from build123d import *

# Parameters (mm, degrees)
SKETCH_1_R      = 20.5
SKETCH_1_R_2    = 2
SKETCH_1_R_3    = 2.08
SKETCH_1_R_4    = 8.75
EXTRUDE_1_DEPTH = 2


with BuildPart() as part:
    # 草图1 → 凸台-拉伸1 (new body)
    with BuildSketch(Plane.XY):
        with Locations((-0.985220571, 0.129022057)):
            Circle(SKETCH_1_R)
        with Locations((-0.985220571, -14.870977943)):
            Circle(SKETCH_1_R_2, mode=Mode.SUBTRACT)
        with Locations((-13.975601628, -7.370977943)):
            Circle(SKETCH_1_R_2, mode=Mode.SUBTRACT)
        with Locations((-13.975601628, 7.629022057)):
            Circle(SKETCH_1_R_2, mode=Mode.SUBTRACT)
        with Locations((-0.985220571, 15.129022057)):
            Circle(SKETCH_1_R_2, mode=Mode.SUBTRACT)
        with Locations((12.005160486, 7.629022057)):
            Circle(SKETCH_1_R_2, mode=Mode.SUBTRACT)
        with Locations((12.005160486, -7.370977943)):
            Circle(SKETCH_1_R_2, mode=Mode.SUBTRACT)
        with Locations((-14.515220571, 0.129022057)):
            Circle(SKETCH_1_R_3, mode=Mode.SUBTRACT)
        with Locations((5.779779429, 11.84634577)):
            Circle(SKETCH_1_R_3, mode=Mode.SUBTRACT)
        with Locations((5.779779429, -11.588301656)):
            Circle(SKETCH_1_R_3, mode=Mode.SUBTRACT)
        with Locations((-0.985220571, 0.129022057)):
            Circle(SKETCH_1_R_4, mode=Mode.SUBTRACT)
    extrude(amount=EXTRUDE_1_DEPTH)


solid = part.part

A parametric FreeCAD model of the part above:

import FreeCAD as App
import Part
import Sketcher

doc = App.newDocument("Part")
params = doc.addObject("Spreadsheet::Sheet", "Params")
for row, (alias, value) in enumerate([
    ("sketch1_diameter", "41 mm"),
    ("sketch1_diameter2", "4 mm"),
    ("sketch1_diameter3", "17.5 mm"),
    ("sketch1_diameter4", "4.16 mm"),
    ("pad1_length", "2 mm"),
], start=1):
    params.set(f"A{row}", alias)
    params.set(f"B{row}", "=" + value)
    params.setAlias(f"B{row}", alias)

body = doc.addObject("PartDesign::Body", "Body")

sketch1 = doc.addObject("Sketcher::SketchObject", "Sketch")
body.addObject(sketch1)
sketch1.AttachmentSupport = (doc.XY_Plane, [""])
sketch1.MapMode = "FlatFace"
sketch1.addGeometry([
    Part.Circle(App.Vector(-0.985221, 0.129022, 0), App.Vector(0, 0, 1), 20.5),
    Part.Circle(App.Vector(-13.975602, -7.370978, 0), App.Vector(0, 0, 1), 2),
    Part.Circle(App.Vector(-0.985221, -14.870978, 0), App.Vector(0, 0, 1), 2),
    Part.Circle(App.Vector(5.779779, -11.588302, 0), App.Vector(0, 0, 1), 2.08),
    Part.Circle(App.Vector(12.00516, -7.370978, 0), App.Vector(0, 0, 1), 2),
    Part.Circle(App.Vector(-14.515221, 0.129022, 0), App.Vector(0, 0, 1), 2.08),
    Part.Circle(App.Vector(-13.975602, 7.629022, 0), App.Vector(0, 0, 1), 2),
    Part.Circle(App.Vector(-0.985221, 0.129022, 0), App.Vector(0, 0, 1), 8.75),
    Part.Circle(App.Vector(12.00516, 7.629022, 0), App.Vector(0, 0, 1), 2),
    Part.Circle(App.Vector(5.779779, 11.846346, 0), App.Vector(0, 0, 1), 2.08),
    Part.Circle(App.Vector(-0.985221, 15.129022, 0), App.Vector(0, 0, 1), 2),
], False)
sketch1.addConstraint([
    Sketcher.Constraint("Coincident", 7, 3, 0, 3),
    Sketcher.Constraint("Equal", 1, 2),
    Sketcher.Constraint("Equal", 2, 4),
    Sketcher.Constraint("Equal", 3, 5),
    Sketcher.Constraint("Equal", 4, 6),
    Sketcher.Constraint("Equal", 6, 8),
    Sketcher.Constraint("Equal", 5, 9),
    Sketcher.Constraint("Equal", 8, 10),
    Sketcher.Constraint("Horizontal", 1, 3, 4, 3),
    Sketcher.Constraint("Horizontal", 0, 3, 5, 3),
    Sketcher.Constraint("Horizontal", 6, 3, 8, 3),
    Sketcher.Constraint("Vertical", 0, 3, 2, 3),
    Sketcher.Constraint("Vertical", 1, 3, 6, 3),
    Sketcher.Constraint("Vertical", 4, 3, 8, 3),
    Sketcher.Constraint("Vertical", 3, 3, 9, 3),
    Sketcher.Constraint("Vertical", 7, 3, 10, 3),
    Sketcher.Constraint("Diameter", 0, 41.0),
    Sketcher.Constraint("Diameter", 1, 4.0),
    Sketcher.Constraint("Diameter", 7, 17.5),
    Sketcher.Constraint("Diameter", 3, 4.16),
    Sketcher.Constraint("DistanceY", 2, 3, 0, 3, 15.0),
    Sketcher.Constraint("DistanceY", 1, 3, 6, 3, 15.0),
    Sketcher.Constraint("DistanceY", 0, 3, 10, 3, 15.0),
    Sketcher.Constraint("DistanceY", 1, 3, 0, 3, 7.5),
    Sketcher.Constraint("DistanceX", 5, 3, 0, 3, 13.53),
    Sketcher.Constraint("DistanceX", 2, 3, 3, 3, 6.765),
    Sketcher.Constraint("DistanceX", 1, 3, -1, 1, 13.975602),
    Sketcher.Constraint("DistanceY", 3, 3, -1, 1, 11.588302),
    Sketcher.Constraint("DistanceX", 0, 3, -1, 1, 0.985221),
    Sketcher.Constraint("DistanceX", -1, 1, 4, 3, 12.00516),
    Sketcher.Constraint("DistanceY", -1, 1, 0, 3, 0.129022),
    Sketcher.Constraint("DistanceY", -1, 1, 9, 3, 11.846346),
])
sketch1.setExpression("Constraints[16]", "Params.sketch1_diameter")
sketch1.setExpression("Constraints[17]", "Params.sketch1_diameter2")
sketch1.setExpression("Constraints[18]", "Params.sketch1_diameter3")
sketch1.setExpression("Constraints[19]", "Params.sketch1_diameter4")
pad1 = doc.addObject("PartDesign::Pad", "Pad")
body.addObject(pad1)
pad1.Profile = sketch1
pad1.setExpression("Length", "Params.pad1_length")

doc.recompute()
